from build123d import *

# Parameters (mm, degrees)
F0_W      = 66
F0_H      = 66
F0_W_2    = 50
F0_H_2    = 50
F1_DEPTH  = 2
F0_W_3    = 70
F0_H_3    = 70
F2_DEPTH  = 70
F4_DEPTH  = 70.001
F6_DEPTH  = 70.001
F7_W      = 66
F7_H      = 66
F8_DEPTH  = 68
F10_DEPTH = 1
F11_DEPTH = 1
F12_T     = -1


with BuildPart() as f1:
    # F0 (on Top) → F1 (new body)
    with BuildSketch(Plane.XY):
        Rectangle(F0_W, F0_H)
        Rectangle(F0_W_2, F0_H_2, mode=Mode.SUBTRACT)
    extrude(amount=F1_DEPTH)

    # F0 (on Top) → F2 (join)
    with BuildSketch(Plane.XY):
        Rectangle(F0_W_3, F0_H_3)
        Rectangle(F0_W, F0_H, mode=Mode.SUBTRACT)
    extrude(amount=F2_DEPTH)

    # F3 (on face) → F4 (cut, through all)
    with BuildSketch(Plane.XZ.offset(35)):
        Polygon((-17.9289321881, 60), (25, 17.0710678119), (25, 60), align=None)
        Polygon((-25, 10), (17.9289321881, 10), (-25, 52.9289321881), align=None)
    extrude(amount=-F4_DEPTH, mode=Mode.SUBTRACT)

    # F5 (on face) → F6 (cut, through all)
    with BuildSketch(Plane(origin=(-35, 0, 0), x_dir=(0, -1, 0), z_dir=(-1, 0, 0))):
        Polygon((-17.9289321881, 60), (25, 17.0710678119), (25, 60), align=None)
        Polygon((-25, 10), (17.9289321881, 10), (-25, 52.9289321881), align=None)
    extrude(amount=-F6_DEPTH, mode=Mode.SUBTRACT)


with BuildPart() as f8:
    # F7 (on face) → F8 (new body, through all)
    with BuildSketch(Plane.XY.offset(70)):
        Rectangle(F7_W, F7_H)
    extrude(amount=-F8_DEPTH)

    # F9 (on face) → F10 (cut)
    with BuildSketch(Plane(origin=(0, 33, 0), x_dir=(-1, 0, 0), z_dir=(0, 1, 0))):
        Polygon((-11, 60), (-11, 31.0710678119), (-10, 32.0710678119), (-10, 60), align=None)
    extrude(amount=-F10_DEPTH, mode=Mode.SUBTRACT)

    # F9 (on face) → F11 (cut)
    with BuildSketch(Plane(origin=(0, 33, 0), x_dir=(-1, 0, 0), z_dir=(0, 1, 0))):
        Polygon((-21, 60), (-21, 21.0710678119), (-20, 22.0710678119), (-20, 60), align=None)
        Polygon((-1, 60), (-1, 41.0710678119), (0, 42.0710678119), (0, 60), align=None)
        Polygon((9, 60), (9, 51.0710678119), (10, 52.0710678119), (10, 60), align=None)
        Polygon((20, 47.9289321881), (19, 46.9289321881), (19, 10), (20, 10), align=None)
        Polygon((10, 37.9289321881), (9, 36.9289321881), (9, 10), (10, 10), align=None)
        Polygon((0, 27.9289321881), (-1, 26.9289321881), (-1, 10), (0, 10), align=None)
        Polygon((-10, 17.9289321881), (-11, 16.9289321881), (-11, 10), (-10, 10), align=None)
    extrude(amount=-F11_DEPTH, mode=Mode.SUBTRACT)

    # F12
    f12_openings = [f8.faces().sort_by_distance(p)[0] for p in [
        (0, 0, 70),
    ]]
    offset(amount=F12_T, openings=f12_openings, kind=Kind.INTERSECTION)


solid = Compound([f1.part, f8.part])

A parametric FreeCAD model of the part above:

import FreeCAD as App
import Part
import Sketcher
from FreeCAD import Vector
Q = App.Units.Quantity


def faces_at(feature, points):
    """Names of the faces that lie closest to the given points."""
    faces = feature.Shape.Faces
    near = lambda p: min(range(len(faces)), key=lambda i: faces[i].distToShape(Part.Vertex(*p))[0])
    return sorted({f"Face{near(p) + 1}" for p in points})


def add_polygon(sketch, points):
    """Adds a closed chain of lines whose ends are joined by coincident constraints."""
    first, n = sketch.GeometryCount, len(points)
    for a, b in zip(points, points[1:] + points[:1]):
        sketch.addGeometry(Part.LineSegment(App.Vector(*a, 0), App.Vector(*b, 0)), False)
    for i in range(n):
        sketch.addConstraint(Sketcher.Constraint("Coincident", first + i, 2, first + (i + 1) % n, 1))

doc = App.newDocument("Part")
params = doc.addObject("Spreadsheet::Sheet", "Params")
for row, (alias, value) in enumerate([
    ("sketch1_width", "66 mm"),
    ("sketch1_width2", "50 mm"),
    ("pad1_length", "2 mm"),
    ("sketch2_width", "70 mm"),
    ("sketch2_width2", "66 mm"),
    ("pad2_length", "70 mm"),
    ("sketch5_width", "66 mm"),
    ("pad3_length", "68 mm"),
    ("sketch6_width", "1 mm"),
    ("pocket3_length", "1 mm"),
    ("sketch7_width", "1 mm"),
    ("pocket4_length", "1 mm"),
    ("thickness_wall", "1 mm"),
], start=1):
    params.set(f"A{row}", alias)
    params.set(f"B{row}", "=" + value)
    params.setAlias(f"B{row}", alias)

body = doc.addObject("PartDesign::Body", "Body")

sketch1 = body.newObject("Sketcher::SketchObject", "Sketch")
sketch1.AttachmentSupport = (doc.getObject("XY_Plane"), [""])
sketch1.MapMode = "FlatFace"
add_polygon(sketch1, [(-33, 33), (-33, -33), (33, -33), (33, 33)])
add_polygon(sketch1, [(25, -25), (-25, -25), (-25, 25), (25, 25)])
sketch1.addConstraint([
    Sketcher.Constraint("Vertical", 0),
    Sketcher.Constraint("Horizontal", 1),
    Sketcher.Constraint("Vertical", 2),
    Sketcher.Constraint("Horizontal", 3),
    Sketcher.Constraint("Horizontal", 4),
    Sketcher.Constraint("Vertical", 5),
    Sketcher.Constraint("Horizontal", 6),
    Sketcher.Constraint("Vertical", 7),
    Sketcher.Constraint("Symmetric", 0, 2, 2, 2, -1, 1),
    Sketcher.Constraint("Symmetric", 4, 2, 6, 2, -1, 1),
    Sketcher.Constraint("Equal", 3, 0),
    Sketcher.Constraint("Equal", 6, 5),
    Sketcher.Constraint("DistanceX", 1, 1, 1, 2, 66.0),
    Sketcher.Constraint("DistanceX", 4, 2, 4, 1, 50.0),
])
sketch1.setExpression("Constraints[20]", "Params.sketch1_width")
sketch1.setExpression("Constraints[21]", "Params.sketch1_width2")
pad1 = body.newObject("PartDesign::Pad", "Pad")
pad1.Profile = sketch1
pad1.setExpression("Length", "Params.pad1_length")

sketch2 = body.newObject("Sketcher::SketchObject", "Sketch001")
sketch2.AttachmentSupport = (doc.getObject("XY_Plane"), [""])
sketch2.MapMode = "FlatFace"
add_polygon(sketch2, [(-35, 35), (-35, -35), (35, -35), (35, 35)])
add_polygon(sketch2, [(33, -33), (-33, -33), (-33, 33), (33, 33)])
sketch2.addConstraint([
    Sketcher.Constraint("Vertical", 0),
    Sketcher.Constraint("Horizontal", 1),
    Sketcher.Constraint("Vertical", 2),
    Sketcher.Constraint("Horizontal", 3),
    Sketcher.Constraint("Horizontal", 4),
    Sketcher.Constraint("Vertical", 5),
    Sketcher.Constraint("Horizontal", 6),
    Sketcher.Constraint("Vertical", 7),
    Sketcher.Constraint("Symmetric", 0, 2, 2, 2, -1, 1),
    Sketcher.Constraint("Symmetric", 4, 2, 6, 2, -1, 1),
    Sketcher.Constraint("Equal", 3, 0),
    Sketcher.Constraint("Equal", 6, 5),
    Sketcher.Constraint("DistanceX", 1, 1, 1, 2, 70.0),
    Sketcher.Constraint("DistanceX", 4, 2, 4, 1, 66.0),
])
sketch2.setExpression("Constraints[20]", "Params.sketch2_width")
sketch2.setExpression("Constraints[21]", "Params.sketch2_width2")
pad2 = body.newObject("PartDesign::Pad", "Pad001")
pad2.Profile = sketch2
pad2.setExpression("Length", "Params.pad2_length")

sketch3 = body.newObject("Sketcher::SketchObject", "Sketch002")
sketch3.AttachmentSupport = (doc.getObject("XZ_Plane"), [""])
sketch3.MapMode = "FlatFace"
sketch3.AttachmentOffset = App.Placement(Vector(0, 0, 35), App.Rotation())
add_polygon(sketch3, [(-18, 60), (25, 17), (25, 60)])
add_polygon(sketch3, [(-25, 10), (18, 10), (-25, 53)])
sketch3.addConstraint([
    Sketcher.Constraint("Vertical", 1),
    Sketcher.Constraint("Horizontal", 2),
    Sketcher.Constraint("Horizontal", 3),
    Sketcher.Constraint("Vertical", 5),
    Sketcher.Constraint("Parallel", 0, 4),
    Sketcher.Constraint("Equal", 2, 3),
    Sketcher.Constraint("Equal", 3, 1),
    Sketcher.Constraint("DistanceX", -1, 1, 0, 2, 25.0),
    Sketcher.Constraint("DistanceY", -1, 1, 1, 2, 60.0),
    Sketcher.Constraint("DistanceY", -1, 1, 3, 2, 10.0),
    Sketcher.Constraint("DistanceX", 4, 2, -1, 1, 25.0),
    Sketcher.Constraint("Distance", 0, 60.710678),
])
pocket1 = body.newObject("PartDesign::Pocket", "Pocket")
pocket1.Profile = sketch3
pocket1.Type = "ThroughAll"

sketch4 = body.newObject("Sketcher::SketchObject", "Sketch003")
sketch4.AttachmentSupport = (doc.getObject("YZ_Plane"), [""])
sketch4.MapMode = "FlatFace"
sketch4.AttachmentOffset = App.Placement(Vector(0, 0, -35), App.Rotation())
add_polygon(sketch4, [(18, 60), (-25, 17), (-25, 60)])
add_polygon(sketch4, [(25, 10), (-18, 10), (25, 53)])
sketch4.addConstraint([
    Sketcher.Constraint("Vertical", 1),
    Sketcher.Constraint("Horizontal", 2),
    Sketcher.Constraint("Horizontal", 3),
    Sketcher.Constraint("Vertical", 5),
    Sketcher.Constraint("Parallel", 0, 4),
    Sketcher.Constraint("Equal", 2, 3),
    Sketcher.Constraint("Equal", 3, 1),
    Sketcher.Constraint("DistanceX", 0, 2, -1, 1, 25.0),
    Sketcher.Constraint("DistanceY", -1, 1, 1, 2, 60.0),
    Sketcher.Constraint("DistanceY", -1, 1, 3, 2, 10.0),
    Sketcher.Constraint("DistanceX", -1, 1, 4, 2, 25.0),
    Sketcher.Constraint("Distance", 0, 60.710678),
])
pocket2 = body.newObject("PartDesign::Pocket", "Pocket001")
pocket2.Profile = sketch4
pocket2.Type = "ThroughAll"
pocket2.Reversed = True
body2 = doc.addObject("PartDesign::Body", "Body001")

sketch5 = body2.newObject("Sketcher::SketchObject", "Sketch004")
sketch5.AttachmentSupport = (doc.getObject("XY_Plane001"), [""])
sketch5.MapMode = "FlatFace"
sketch5.AttachmentOffset = App.Placement(Vector(0, 0, 70), App.Rotation())
add_polygon(sketch5, [(-33, 33), (-33, -33), (33, -33), (33, 33)])
sketch5.addConstraint([
    Sketcher.Constraint("Vertical", 0),
    Sketcher.Constraint("Horizontal", 1),
    Sketcher.Constraint("Vertical", 2),
    Sketcher.Constraint("Horizontal", 3),
    Sketcher.Constraint("Symmetric", 0, 2, 2, 2, -1, 1),
    Sketcher.Constraint("Equal", 3, 0),
    Sketcher.Constraint("DistanceX", 1, 1, 1, 2, 66.0),
])
sketch5.setExpression("Constraints[10]", "Params.sketch5_width")
pad3 = body2.newObject("PartDesign::Pad", "Pad002")
pad3.Profile = sketch5
pad3.setExpression("Length", "Params.pad3_length")
pad3.Reversed = True

sketch6 = body2.newObject("Sketcher::SketchObject", "Sketch005")
sketch6.AttachmentSupport = (doc.getObject("XZ_Plane001"), [""])
sketch6.MapMode = "FlatFace"
sketch6.AttachmentOffset = App.Placement(Vector(0, 0, -33), App.Rotation())
add_polygon(sketch6, [(11, 60), (11, 31.1), (10, 32.1), (10, 60)])
sketch6.addConstraint([
    Sketcher.Constraint("Vertical", 0),
    Sketcher.Constraint("Vertical", 2),
    Sketcher.Constraint("Horizontal", 3),
    Sketcher.Constraint("DistanceX", 3, 1, 3, 2, 1.0),
    Sketcher.Constraint("Angle", 1, Q("135 deg")),
    Sketcher.Constraint("DistanceX", -1, 1, 0, 2, 11.0),
    Sketcher.Constraint("DistanceY", -1, 1, 2, 2, 60.0),
    Sketcher.Constraint("DistanceY", 0, 2, 0, 1, 28.928932),
])
sketch6.setExpression("Constraints[7]", "Params.sketch6_width")
pocket3 = body2.newObject("PartDesign::Pocket", "Pocket002")
pocket3.Profile = sketch6
pocket3.setExpression("Length", "Params.pocket3_length")
pocket3.Reversed = True

sketch7 = body2.newObject("Sketcher::SketchObject", "Sketch006")
sketch7.AttachmentSupport = (doc.getObject("XZ_Plane001"), [""])
sketch7.MapMode = "FlatFace"
sketch7.AttachmentOffset = App.Placement(Vector(0, 0, -33), App.Rotation())
add_polygon(sketch7, [(21, 60), (21, 21.1), (20, 22.1), (20, 60)])
add_polygon(sketch7, [(1, 60), (1, 41.1), (0, 42.1), (0, 60)])
add_polygon(sketch7, [(-9, 60), (-9, 51.1), (-10, 52.1), (-10, 60)])
add_polygon(sketch7, [(-20, 47.9), (-19, 46.9), (-19, 10), (-20, 10)])
add_polygon(sketch7, [(-10, 37.9), (-9, 36.9), (-9, 10), (-10, 10)])
add_polygon(sketch7, [(0, 27.9), (1, 26.9), (1, 10), (0, 10)])
add_polygon(sketch7, [(10, 17.9), (11, 16.9), (11, 10), (10, 10)])
sketch7.addConstraint([
    Sketcher.Constraint("Vertical", 0),
    Sketcher.Constraint("Vertical", 2),
    Sketcher.Constraint("Horizontal", 3),
    Sketcher.Constraint("Vertical", 4),
    Sketcher.Constraint("Vertical", 6),
    Sketcher.Constraint("Horizontal", 7),
    Sketcher.Constraint("Vertical", 8),
    Sketcher.Constraint("Vertical", 10),
    Sketcher.Constraint("Horizontal", 11),
    Sketcher.Constraint("Vertical", 13),
    Sketcher.Constraint("Horizontal", 14),
    Sketcher.Constraint("Vertical", 15),
    Sketcher.Constraint("Vertical", 17),
    Sketcher.Constraint("Horizontal", 18),
    Sketcher.Constraint("Vertical", 19),
    Sketcher.Constraint("Vertical", 21),
    Sketcher.Constraint("Horizontal", 22),
    Sketcher.Constraint("Vertical", 23),
    Sketcher.Constraint("Vertical", 25),
    Sketcher.Constraint("Horizontal", 26),
    Sketcher.Constraint("Vertical", 27),
    Sketcher.Constraint("Symmetric", 18, 2, 26, 2, -2),
    Sketcher.Constraint("PointOnObject", 5, 2, -2),
    Sketcher.Constraint("PointOnObject", 22, 2, -2),
    Sketcher.Constraint("Parallel", 1, 5),
    Sketcher.Constraint("Parallel", 5, 9),
    Sketcher.Constraint("Parallel", 9, 12),
    Sketcher.Constraint("Parallel", 12, 16),
    Sketcher.Constraint("Parallel", 16, 20),
    Sketcher.Constraint("Parallel", 20, 24),
    Sketcher.Constraint("Horizontal", 3, 2, 6, 2),
    Sketcher.Constraint("Horizontal", 7, 2, 10, 2),
    Sketcher.Constraint("Horizontal", 14, 2, 17, 2),
    Sketcher.Constraint("Horizontal", 18, 2, 21, 2),
    Sketcher.Constraint("Vertical", 11, 2, 16, 2),
    Sketcher.Constraint("Vertical", 10, 2, 18, 2),
    Sketcher.Constraint("Vertical", 7, 2, 20, 2),
    Sketcher.Constraint("Equal", 3, 7),
    Sketcher.Constraint("Equal", 7, 11),
    Sketcher.Constraint("Equal", 11, 14),
    Sketcher.Constraint("Equal", 22, 26),
    Sketcher.Constraint("Equal", 2, 15),
    Sketcher.Constraint("Equal", 6, 23),
    Sketcher.Constraint("Equal", 10, 27),
    Sketcher.Constraint("DistanceX", 3, 1, 3, 2, 1.0),
    Sketcher.Constraint("Angle", 1, Q("135 deg")),
    Sketcher.Constraint("DistanceX", -1, 1, 0, 2, 21.0),
    Sketcher.Constraint("DistanceY", -1, 1, 2, 2, 60.0),
    Sketcher.Constraint("DistanceX", 8, 2, -1, 1, 9.0),
    Sketcher.Constraint("DistanceX", 12, 2, -1, 1, 19.0),
    Sketcher.Constraint("DistanceY", -1, 1, 13, 2, 10.0),
    Sketcher.Constraint("DistanceY", 1, 2, 4, 2, 19.0),
    Sketcher.Constraint("DistanceY", 5, 2, 8, 2, 9.0),
    Sketcher.Constraint("DistanceY", 16, 2, 12, 2, 10.0),
    Sketcher.Constraint("DistanceY", 0, 2, 0, 1, 38.928932),
])
sketch7.setExpression("Constraints[72]", "Params.sketch7_width")
pocket4 = body2.newObject("PartDesign::Pocket", "Pocket003")
pocket4.Profile = sketch7
pocket4.setExpression("Length", "Params.pocket4_length")
pocket4.Reversed = True
doc.recompute()

thickness = body2.newObject("PartDesign::Thickness", "Thickness")
thickness.Base = (pocket4, faces_at(pocket4, [(0, 0, 70)]))
thickness.setExpression("Value", "Params.thickness_wall")
thickness.Reversed = True
thickness.Join = "Intersection"

doc.recompute()
